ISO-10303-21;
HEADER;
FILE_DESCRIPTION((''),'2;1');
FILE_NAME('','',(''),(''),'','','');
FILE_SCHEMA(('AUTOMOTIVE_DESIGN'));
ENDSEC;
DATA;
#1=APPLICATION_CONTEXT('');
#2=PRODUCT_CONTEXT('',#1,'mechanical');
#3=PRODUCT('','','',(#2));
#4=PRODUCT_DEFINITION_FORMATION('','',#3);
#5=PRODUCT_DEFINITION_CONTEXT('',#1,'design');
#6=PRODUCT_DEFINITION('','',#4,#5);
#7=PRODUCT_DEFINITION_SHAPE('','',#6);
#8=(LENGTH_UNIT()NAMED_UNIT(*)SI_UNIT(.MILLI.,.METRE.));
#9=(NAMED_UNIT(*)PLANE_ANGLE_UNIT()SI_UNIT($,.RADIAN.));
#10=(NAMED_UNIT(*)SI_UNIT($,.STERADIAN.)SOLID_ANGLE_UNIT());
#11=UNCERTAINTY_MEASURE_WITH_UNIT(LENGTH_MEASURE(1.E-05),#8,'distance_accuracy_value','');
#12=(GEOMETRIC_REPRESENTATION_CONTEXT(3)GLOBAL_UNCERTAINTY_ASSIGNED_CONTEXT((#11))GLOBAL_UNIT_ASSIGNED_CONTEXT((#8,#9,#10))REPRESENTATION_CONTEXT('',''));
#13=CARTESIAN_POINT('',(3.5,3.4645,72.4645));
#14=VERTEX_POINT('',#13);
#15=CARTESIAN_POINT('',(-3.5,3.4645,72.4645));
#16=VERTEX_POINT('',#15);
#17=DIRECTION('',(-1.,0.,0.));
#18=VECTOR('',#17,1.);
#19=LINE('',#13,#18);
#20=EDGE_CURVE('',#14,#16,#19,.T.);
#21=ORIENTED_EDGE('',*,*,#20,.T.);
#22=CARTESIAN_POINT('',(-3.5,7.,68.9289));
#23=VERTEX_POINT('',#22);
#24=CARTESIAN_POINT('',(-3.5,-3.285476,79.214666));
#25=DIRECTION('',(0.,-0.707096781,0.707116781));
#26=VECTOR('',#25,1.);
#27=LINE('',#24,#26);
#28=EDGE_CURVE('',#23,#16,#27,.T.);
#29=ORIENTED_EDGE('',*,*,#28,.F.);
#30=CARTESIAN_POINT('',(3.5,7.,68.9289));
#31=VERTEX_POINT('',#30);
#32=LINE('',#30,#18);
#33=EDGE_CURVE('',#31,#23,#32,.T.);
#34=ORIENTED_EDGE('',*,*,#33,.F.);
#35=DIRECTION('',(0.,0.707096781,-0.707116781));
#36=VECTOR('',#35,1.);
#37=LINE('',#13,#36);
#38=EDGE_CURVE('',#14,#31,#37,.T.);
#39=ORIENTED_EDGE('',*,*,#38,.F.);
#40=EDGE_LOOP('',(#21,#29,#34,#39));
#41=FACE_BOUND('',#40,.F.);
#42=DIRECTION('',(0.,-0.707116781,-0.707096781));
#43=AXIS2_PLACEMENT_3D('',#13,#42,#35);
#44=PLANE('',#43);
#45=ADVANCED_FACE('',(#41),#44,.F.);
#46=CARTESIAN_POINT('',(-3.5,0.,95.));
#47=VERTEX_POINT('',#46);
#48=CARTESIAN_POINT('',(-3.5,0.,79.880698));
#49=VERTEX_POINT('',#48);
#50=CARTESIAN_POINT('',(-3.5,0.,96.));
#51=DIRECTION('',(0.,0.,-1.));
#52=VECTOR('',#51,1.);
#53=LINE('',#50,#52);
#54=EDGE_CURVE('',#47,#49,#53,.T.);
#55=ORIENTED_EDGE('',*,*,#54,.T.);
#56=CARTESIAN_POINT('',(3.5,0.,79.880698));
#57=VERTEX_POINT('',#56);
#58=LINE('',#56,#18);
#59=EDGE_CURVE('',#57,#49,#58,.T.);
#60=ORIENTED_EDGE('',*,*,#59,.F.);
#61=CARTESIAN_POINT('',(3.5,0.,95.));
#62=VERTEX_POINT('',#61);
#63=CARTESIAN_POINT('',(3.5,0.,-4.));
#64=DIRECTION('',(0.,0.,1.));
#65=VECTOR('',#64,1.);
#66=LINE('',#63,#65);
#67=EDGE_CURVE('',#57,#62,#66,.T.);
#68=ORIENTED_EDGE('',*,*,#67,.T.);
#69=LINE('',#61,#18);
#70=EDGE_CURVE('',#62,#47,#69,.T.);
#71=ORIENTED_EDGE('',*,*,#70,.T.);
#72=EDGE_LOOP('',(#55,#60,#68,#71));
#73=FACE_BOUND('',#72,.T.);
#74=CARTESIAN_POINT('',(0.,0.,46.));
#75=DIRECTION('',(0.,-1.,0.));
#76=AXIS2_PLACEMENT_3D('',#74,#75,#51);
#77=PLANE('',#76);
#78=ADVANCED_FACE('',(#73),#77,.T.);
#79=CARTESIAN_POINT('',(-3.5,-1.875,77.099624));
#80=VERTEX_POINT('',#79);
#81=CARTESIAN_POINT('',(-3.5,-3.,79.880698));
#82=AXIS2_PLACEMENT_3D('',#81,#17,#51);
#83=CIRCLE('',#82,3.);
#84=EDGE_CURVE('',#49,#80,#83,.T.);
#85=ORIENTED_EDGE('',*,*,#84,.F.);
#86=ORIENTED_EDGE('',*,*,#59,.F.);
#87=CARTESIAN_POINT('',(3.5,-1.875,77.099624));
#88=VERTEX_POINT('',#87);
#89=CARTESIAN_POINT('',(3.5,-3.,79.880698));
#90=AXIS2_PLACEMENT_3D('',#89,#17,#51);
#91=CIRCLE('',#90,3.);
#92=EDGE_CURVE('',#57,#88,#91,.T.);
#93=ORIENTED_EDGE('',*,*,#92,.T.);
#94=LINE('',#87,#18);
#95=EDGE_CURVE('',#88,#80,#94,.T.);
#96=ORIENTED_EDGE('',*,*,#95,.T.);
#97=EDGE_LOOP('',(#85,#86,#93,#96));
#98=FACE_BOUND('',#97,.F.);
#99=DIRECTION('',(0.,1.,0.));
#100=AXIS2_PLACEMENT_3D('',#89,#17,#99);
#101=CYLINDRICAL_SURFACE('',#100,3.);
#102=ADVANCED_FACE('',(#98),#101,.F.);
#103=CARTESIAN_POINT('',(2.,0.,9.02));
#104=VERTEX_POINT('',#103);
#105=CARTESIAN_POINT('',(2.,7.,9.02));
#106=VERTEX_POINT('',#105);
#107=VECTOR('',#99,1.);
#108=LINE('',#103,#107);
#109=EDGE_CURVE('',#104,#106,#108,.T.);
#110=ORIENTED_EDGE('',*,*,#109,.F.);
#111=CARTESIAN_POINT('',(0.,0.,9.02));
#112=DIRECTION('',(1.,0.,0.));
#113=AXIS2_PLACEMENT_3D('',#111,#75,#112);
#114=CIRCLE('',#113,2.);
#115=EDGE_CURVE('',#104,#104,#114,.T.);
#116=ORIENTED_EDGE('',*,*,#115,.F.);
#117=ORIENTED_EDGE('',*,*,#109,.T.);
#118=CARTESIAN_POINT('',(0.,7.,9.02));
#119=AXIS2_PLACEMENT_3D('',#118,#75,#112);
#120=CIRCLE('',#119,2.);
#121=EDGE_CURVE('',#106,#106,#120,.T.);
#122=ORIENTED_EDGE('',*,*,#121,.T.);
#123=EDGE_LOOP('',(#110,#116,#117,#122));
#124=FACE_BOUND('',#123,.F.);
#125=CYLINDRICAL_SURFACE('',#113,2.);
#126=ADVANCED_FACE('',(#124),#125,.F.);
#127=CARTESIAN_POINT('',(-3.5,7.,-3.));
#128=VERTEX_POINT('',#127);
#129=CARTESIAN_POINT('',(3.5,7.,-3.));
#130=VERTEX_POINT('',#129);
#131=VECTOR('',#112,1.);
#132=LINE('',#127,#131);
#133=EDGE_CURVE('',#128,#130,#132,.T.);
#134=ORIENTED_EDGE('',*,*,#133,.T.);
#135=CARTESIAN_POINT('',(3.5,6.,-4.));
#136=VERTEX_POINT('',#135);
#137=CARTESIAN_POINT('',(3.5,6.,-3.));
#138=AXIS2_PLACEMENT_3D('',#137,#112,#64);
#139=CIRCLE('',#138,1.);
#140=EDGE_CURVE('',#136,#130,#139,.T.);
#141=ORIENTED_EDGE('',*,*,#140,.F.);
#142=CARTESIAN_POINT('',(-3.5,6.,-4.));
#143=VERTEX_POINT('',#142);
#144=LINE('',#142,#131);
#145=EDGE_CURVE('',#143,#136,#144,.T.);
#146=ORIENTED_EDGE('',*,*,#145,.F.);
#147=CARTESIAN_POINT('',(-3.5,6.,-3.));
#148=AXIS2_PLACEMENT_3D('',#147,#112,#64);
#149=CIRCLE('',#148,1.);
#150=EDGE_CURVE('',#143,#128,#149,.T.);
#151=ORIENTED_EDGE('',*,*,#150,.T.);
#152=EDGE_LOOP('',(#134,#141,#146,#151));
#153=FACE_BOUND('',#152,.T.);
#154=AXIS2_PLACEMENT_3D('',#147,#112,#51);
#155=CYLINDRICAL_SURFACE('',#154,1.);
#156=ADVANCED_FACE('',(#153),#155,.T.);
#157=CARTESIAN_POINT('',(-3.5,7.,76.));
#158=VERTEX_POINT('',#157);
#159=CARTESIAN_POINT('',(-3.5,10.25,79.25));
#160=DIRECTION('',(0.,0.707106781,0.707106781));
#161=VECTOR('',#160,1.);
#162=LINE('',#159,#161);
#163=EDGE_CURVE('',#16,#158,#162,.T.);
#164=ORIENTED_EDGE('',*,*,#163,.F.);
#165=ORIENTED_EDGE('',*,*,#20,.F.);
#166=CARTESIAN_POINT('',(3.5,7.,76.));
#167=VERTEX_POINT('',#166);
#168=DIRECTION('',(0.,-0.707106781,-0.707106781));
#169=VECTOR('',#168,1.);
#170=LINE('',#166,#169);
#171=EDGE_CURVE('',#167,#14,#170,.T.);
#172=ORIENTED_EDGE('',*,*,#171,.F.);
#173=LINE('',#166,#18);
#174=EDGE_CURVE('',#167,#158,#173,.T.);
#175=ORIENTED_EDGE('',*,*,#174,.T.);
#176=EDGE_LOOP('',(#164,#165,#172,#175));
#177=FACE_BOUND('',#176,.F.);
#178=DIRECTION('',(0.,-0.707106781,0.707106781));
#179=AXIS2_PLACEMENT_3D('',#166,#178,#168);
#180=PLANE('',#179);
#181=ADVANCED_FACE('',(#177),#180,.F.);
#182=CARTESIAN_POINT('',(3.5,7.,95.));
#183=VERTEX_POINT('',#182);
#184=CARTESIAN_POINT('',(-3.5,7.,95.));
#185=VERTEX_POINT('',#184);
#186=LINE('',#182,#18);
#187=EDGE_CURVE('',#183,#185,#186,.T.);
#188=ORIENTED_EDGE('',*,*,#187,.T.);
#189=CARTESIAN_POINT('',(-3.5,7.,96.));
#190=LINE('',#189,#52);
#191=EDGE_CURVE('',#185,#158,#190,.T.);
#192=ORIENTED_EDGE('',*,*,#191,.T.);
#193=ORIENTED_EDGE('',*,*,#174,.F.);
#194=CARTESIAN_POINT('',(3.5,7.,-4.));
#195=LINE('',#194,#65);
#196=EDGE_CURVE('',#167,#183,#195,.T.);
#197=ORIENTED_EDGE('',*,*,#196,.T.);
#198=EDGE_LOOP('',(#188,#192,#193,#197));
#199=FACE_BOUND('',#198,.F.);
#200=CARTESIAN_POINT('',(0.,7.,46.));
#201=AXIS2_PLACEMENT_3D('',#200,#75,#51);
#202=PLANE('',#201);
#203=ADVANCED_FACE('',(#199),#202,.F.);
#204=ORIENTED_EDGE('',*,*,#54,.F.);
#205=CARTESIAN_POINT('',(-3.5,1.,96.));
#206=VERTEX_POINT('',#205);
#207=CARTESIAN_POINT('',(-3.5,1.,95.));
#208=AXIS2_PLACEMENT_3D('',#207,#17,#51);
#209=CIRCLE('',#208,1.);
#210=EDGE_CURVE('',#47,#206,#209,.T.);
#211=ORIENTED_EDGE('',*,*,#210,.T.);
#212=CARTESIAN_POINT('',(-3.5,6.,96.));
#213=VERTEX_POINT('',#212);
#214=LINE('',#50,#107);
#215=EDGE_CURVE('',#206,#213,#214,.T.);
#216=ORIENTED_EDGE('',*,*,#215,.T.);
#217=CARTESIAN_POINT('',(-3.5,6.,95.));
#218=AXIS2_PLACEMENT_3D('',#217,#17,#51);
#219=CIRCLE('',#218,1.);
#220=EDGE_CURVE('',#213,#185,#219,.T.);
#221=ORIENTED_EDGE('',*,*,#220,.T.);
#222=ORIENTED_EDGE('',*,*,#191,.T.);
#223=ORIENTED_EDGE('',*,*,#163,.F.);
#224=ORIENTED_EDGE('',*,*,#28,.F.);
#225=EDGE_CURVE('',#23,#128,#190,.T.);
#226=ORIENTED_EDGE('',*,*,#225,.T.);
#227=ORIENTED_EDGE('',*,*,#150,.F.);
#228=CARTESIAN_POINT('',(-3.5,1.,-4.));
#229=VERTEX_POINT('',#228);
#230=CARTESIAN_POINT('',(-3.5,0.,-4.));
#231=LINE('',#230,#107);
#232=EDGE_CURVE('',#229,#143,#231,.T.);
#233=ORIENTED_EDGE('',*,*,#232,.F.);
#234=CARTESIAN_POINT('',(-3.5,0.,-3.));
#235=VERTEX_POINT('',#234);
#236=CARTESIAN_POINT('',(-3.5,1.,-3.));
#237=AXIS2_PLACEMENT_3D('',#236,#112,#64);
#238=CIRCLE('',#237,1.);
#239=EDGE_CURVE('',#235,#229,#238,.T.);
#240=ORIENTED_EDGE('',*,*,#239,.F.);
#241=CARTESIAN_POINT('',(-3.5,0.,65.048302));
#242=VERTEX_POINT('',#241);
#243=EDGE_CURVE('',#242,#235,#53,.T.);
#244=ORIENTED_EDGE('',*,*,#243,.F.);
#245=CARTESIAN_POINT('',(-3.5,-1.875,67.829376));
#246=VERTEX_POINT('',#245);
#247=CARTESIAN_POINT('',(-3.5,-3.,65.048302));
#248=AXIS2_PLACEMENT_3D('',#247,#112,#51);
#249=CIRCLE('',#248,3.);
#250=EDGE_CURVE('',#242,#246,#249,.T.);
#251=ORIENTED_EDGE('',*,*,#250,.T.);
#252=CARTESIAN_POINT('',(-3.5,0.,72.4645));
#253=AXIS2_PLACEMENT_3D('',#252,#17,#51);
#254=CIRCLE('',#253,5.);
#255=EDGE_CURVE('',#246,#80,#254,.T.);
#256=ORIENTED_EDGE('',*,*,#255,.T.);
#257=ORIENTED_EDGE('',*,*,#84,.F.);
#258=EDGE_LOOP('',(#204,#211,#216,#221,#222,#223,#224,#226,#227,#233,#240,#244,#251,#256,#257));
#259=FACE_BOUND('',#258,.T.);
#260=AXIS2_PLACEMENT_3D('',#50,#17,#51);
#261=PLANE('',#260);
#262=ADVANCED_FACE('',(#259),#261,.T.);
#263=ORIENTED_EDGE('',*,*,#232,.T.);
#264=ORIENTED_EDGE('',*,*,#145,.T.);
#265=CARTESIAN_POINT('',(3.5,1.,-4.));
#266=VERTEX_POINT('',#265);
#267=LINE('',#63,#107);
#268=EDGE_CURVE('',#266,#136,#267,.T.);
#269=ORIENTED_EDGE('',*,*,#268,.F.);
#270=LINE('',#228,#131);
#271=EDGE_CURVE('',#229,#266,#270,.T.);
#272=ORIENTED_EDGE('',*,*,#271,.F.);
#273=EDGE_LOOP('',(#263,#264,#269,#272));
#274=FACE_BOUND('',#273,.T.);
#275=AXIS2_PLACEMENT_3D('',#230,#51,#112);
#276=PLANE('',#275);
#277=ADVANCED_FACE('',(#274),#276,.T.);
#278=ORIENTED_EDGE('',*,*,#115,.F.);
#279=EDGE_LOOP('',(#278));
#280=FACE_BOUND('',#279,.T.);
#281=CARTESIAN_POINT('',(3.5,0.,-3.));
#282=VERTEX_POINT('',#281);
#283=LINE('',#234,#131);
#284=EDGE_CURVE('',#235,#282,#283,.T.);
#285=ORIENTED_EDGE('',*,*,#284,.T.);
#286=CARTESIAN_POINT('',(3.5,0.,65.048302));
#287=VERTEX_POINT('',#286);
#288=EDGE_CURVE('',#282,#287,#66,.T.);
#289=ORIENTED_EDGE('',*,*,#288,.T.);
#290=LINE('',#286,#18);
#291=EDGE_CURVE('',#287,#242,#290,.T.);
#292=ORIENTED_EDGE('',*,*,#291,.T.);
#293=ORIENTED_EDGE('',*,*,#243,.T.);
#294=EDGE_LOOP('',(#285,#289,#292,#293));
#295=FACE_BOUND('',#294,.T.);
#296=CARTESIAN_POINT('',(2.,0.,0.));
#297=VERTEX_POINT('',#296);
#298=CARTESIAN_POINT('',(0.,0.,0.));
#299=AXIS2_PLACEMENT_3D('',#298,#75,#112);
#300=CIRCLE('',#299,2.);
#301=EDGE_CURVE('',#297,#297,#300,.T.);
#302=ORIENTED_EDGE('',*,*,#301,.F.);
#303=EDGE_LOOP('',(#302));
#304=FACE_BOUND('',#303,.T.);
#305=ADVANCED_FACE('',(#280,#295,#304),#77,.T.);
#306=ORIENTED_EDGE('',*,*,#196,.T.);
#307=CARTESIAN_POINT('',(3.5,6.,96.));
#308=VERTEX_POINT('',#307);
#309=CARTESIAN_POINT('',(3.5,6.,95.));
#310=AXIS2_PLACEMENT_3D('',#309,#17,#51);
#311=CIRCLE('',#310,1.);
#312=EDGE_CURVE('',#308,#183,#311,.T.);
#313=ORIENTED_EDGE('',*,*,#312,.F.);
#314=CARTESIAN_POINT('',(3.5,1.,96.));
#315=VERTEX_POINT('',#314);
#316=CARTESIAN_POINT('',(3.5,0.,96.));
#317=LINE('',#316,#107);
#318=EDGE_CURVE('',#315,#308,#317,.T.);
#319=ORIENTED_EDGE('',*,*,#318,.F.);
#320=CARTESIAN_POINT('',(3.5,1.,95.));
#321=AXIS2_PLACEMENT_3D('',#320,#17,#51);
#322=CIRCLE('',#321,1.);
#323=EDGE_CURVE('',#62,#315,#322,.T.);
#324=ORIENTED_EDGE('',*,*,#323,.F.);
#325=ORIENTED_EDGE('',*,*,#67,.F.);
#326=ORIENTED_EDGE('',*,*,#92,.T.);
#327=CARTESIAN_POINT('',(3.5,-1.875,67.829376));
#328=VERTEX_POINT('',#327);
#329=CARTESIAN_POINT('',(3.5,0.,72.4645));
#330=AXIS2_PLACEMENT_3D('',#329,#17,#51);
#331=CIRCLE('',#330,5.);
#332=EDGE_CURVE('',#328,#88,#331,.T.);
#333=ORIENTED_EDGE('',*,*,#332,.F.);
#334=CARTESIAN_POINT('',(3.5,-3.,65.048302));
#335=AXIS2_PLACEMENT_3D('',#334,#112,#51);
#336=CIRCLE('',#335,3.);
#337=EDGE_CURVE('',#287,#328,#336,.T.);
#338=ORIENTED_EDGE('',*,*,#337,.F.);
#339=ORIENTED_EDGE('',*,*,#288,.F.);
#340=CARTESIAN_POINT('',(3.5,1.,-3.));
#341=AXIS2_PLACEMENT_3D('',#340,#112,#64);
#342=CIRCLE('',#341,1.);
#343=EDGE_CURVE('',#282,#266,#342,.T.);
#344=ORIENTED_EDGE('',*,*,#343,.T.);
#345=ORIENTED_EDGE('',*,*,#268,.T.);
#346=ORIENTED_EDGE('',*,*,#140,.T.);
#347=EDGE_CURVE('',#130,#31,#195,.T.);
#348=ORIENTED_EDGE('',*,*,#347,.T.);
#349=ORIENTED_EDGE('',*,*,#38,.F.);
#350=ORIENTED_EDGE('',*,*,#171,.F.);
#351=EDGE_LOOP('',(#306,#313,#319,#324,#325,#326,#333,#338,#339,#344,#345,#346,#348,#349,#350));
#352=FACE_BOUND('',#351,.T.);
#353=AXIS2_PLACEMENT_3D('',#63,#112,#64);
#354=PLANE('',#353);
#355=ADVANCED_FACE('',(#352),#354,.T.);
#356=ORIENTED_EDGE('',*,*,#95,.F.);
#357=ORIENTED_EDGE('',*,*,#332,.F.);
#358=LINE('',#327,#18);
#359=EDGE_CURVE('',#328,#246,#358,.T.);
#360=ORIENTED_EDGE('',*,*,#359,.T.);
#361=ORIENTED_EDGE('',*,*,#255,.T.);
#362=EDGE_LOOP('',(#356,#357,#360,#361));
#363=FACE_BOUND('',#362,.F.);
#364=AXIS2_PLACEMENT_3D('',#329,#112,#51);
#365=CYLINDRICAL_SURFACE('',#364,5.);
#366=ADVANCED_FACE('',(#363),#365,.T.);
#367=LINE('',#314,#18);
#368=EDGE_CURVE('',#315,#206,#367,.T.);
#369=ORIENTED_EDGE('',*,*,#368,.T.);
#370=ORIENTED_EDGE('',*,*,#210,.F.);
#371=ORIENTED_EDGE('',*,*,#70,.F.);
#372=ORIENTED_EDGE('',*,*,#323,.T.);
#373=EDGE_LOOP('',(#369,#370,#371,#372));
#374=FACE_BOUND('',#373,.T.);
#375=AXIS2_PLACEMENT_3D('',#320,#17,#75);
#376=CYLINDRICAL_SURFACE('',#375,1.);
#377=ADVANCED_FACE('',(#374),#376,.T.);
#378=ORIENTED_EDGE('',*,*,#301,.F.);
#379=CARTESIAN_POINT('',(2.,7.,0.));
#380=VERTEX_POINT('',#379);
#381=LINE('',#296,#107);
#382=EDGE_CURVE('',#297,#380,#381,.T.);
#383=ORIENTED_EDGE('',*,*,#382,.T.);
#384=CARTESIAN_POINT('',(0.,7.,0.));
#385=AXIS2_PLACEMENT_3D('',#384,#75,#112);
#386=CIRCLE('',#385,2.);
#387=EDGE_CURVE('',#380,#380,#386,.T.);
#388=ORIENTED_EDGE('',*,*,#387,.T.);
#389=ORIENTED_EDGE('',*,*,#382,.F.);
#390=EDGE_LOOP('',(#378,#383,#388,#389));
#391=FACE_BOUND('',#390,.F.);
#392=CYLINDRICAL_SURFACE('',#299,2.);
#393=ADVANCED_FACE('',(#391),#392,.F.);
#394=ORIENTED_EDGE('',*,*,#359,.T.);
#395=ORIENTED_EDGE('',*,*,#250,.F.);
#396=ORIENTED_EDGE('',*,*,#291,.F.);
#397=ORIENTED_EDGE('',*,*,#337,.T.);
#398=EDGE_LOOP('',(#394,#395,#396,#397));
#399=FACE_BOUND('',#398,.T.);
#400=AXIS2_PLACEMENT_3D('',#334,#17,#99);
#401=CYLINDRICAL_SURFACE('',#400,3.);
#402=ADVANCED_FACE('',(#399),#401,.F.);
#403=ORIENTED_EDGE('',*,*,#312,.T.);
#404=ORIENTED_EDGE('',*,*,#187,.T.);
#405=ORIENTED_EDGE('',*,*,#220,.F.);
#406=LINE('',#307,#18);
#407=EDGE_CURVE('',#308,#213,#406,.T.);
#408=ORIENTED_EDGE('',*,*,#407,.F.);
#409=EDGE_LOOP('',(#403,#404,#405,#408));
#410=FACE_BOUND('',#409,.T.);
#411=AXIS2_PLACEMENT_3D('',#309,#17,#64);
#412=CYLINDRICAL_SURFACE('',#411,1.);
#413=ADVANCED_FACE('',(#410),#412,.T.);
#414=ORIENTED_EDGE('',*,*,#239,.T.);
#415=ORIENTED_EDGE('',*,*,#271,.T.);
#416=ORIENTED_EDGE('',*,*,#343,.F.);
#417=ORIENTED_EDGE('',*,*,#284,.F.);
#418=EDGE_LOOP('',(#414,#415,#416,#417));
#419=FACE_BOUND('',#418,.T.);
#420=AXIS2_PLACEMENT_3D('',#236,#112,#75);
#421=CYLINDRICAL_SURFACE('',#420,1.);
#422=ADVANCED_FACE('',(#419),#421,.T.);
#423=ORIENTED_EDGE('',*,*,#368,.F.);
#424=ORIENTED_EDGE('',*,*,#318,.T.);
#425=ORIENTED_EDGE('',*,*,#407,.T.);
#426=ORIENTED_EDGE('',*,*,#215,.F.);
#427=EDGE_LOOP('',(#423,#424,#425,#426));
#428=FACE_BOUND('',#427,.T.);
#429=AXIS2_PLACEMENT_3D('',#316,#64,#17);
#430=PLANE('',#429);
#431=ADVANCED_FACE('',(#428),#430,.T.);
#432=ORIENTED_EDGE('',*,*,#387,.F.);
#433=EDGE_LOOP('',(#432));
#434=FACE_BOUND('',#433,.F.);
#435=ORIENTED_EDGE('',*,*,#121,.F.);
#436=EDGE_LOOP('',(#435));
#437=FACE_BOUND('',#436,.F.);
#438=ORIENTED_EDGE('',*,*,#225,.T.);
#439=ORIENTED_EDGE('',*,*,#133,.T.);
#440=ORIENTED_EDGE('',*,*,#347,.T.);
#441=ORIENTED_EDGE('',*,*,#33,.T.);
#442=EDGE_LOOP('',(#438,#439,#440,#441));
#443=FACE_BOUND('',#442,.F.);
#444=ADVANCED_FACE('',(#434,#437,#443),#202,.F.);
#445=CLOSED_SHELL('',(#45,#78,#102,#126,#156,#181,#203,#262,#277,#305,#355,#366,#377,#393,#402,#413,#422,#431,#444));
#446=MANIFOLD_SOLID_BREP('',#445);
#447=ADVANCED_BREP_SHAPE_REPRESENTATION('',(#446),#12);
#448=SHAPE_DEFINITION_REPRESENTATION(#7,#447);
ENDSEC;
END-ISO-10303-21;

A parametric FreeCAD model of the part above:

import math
import FreeCAD as App
import Part
import Sketcher

V = App.Vector
Q = App.Units.Quantity


def edges_at(feature, points):
    """Names of the edges that pass closest to the given points."""
    edges = feature.Shape.Edges
    near = lambda p: min(range(len(edges)), key=lambda i: edges[i].distToShape(Part.Vertex(*p))[0])
    return sorted({f"Edge{near(p) + 1}" for p in points})

doc = App.newDocument("Part")
body = doc.addObject("PartDesign::Body", "Body")

sketch1 = doc.addObject("Sketcher::SketchObject", "Sketch")
body.addObject(sketch1)
sketch1.AttachmentSupport = (doc.XZ_Plane, [""])
sketch1.MapMode = "FlatFace"
sketch1.addGeometry([
    Part.LineSegment(V(-3.5, -4, 0), V(3.5, -4, 0)),
    Part.LineSegment(V(3.5, -4, 0), V(3.5, 96, 0)),
    Part.LineSegment(V(3.5, 96, 0), V(-3.5, 96, 0)),
    Part.LineSegment(V(-3.5, 96, 0), V(-3.5, -4, 0)),
    Part.Circle(V(0, 0, 0), V(0, 0, 1), 2),
    Part.Circle(V(0, 9, 0), V(0, 0, 1), 2),
], False)
sketch1.addConstraint([
    Sketcher.Constraint("Coincident", 0, 2, 1, 1),
    Sketcher.Constraint("Coincident", 1, 2, 2, 1),
    Sketcher.Constraint("Coincident", 2, 2, 3, 1),
    Sketcher.Constraint("Coincident", 3, 2, 0, 1),
    Sketcher.Constraint("Horizontal", 0),
    Sketcher.Constraint("Vertical", 1),
    Sketcher.Constraint("Horizontal", 2),
    Sketcher.Constraint("Vertical", 3),
    Sketcher.Constraint("Coincident", 4, 3, -1, 1),
    Sketcher.Constraint("Equal", 4, 5),
    Sketcher.Constraint("PointOnObject", 5, 3, -2),
    Sketcher.Constraint("Diameter", 4, Q("4 mm")),
    Sketcher.Constraint("DistanceX", 0, 1, 0, 2, Q("7 mm")),
    Sketcher.Constraint("DistanceY", 1, 1, 1, 2, Q("100 mm")),
    Sketcher.Constraint("DistanceY", 0, 2, -1, 1, Q("4 mm")),
    Sketcher.Constraint("DistanceX", -1, 1, 0, 2, Q("3.5 mm")),
    Sketcher.Constraint("DistanceY", -1, 1, 5, 3, Q("9.02 mm")),
])
pad1 = doc.addObject("PartDesign::Pad", "Pad")
body.addObject(pad1)
pad1.Profile = sketch1
pad1.Length = 7
pad1.Reversed = True

sketch2 = doc.addObject("Sketcher::SketchObject", "Sketch001")
body.addObject(sketch2)
sketch2.AttachmentSupport = (doc.YZ_Plane, [""])
sketch2.MapMode = "FlatFace"
sketch2.AttachmentOffset = App.Placement(V(0, 0, 3.5), App.Rotation())
sketch2.addGeometry([
    Part.LineSegment(V(7, 68.9, 0), V(7, 76, 0)),
    Part.LineSegment(V(7, 76, 0), V(3.5, 72.5, 0)),
    Part.LineSegment(V(3.5, 72.5, 0), V(7, 68.9, 0)),
], False)
sketch2.addConstraint([
    Sketcher.Constraint("Coincident", 0, 2, 1, 1),
    Sketcher.Constraint("Coincident", 1, 2, 2, 1),
    Sketcher.Constraint("Coincident", 2, 2, 0, 1),
    Sketcher.Constraint("Vertical", 0),
    Sketcher.Constraint("Perpendicular", 1, 2),
    Sketcher.Constraint("Equal", 1, 2),
    Sketcher.Constraint("Distance", 1, Q("5 mm")),
    Sketcher.Constraint("DistanceX", -1, 1, 0, 2, Q("7 mm")),
    Sketcher.Constraint("DistanceY", -1, 1, 0, 2, Q("76 mm")),
])
pocket1 = doc.addObject("PartDesign::Pocket", "Pocket")
body.addObject(pocket1)
pocket1.Profile = sketch2
pocket1.Length = 24

sketch3 = doc.addObject("Sketcher::SketchObject", "Sketch002")
body.addObject(sketch3)
sketch3.AttachmentSupport = (doc.YZ_Plane, [""])
sketch3.MapMode = "FlatFace"
sketch3.AttachmentOffset = App.Placement(V(0, 0, 3.5), App.Rotation())
sketch3.addGeometry([
    Part.LineSegment(V(0, 67, 0), V(0, 77, 0)),
    Part.ArcOfCircle(Part.Circle(V(0, 72, 0), V(0, 0, 1), 5), math.radians(90), math.radians(270)),
], False)
sketch3.addConstraint([
    Sketcher.Constraint("Coincident", 0, 1, 1, 2),
    Sketcher.Constraint("Coincident", 1, 1, 0, 2),
    Sketcher.Constraint("Vertical", 0),
    Sketcher.Constraint("PointOnObject", 1, 3, -2),
    Sketcher.Constraint("PointOnObject", 0, 1, -2),
    Sketcher.Constraint("Radius", 1, Q("5 mm")),
    Sketcher.Constraint("DistanceY", -1, 1, 1, 3, Q("72.4645 mm")),
])
pad2 = doc.addObject("PartDesign::Pad", "Pad001")
body.addObject(pad2)
pad2.Profile = sketch3
pad2.Length = 7
pad2.Reversed = True
doc.recompute()

fillet = doc.addObject("PartDesign::Fillet", "Fillet")
body.addObject(fillet)
fillet.Base = (pad2, edges_at(pad2, [(0, 0, 67.465), (0, 0, 77.465)]))
fillet.Radius = 3
doc.recompute()

fillet2 = doc.addObject("PartDesign::Fillet", "Fillet001")
body.addObject(fillet2)
fillet2.Base = (fillet, edges_at(fillet, [
    (0, 7, 96),
    (0, 0, 96),
    (0, 0, -4),
    (0, 7, -4),
]))
fillet2.Radius = 1

doc.recompute()
